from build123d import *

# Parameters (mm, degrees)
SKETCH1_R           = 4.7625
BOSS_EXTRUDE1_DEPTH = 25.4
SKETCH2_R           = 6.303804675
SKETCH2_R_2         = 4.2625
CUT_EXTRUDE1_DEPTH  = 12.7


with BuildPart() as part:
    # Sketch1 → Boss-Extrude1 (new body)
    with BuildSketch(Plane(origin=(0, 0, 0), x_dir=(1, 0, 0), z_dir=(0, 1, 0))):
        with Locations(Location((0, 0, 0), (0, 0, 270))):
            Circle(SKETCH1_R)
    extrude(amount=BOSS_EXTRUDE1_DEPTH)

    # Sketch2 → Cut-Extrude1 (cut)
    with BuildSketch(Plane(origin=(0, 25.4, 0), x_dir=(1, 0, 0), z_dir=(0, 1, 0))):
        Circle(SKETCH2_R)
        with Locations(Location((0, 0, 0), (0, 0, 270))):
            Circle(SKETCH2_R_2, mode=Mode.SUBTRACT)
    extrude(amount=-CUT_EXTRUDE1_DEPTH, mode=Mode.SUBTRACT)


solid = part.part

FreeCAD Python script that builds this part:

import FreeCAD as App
import Part
import Sketcher
Q = App.Units.Quantity

doc = App.newDocument("Part")
body = doc.addObject("PartDesign::Body", "Body")

sketch1 = doc.addObject("Sketcher::SketchObject", "Sketch")
body.addObject(sketch1)
sketch1.AttachmentSupport = (doc.XZ_Plane, [""])
sketch1.MapMode = "FlatFace"
sketch1.addGeometry(Part.Circle(App.Vector(0, 0, 0), App.Vector(0, 0, 1), 4.8), False)
sketch1.addConstraint([
    Sketcher.Constraint("Coincident", 0, 3, -1, 1),
    Sketcher.Constraint("Diameter", 0, Q("0.375 in")),
])
pad1 = doc.addObject("PartDesign::Pad", "Pad")
body.addObject(pad1)
pad1.Profile = sketch1
pad1.Length = Q("1 in")
pad1.Reversed = True

sketch2 = doc.addObject("Sketcher::SketchObject", "Sketch001")
body.addObject(sketch2)
sketch2.AttachmentSupport = (doc.XZ_Plane, [""])
sketch2.MapMode = "FlatFace"
sketch2.AttachmentOffset = App.Placement(App.Vector(0, 0, -1 * 25.4), App.Rotation())
sketch2.addGeometry([
    Part.Circle(App.Vector(0, 0, 0), App.Vector(0, 0, 1), 6.3),
    Part.Circle(App.Vector(0, 0, 0), App.Vector(0, 0, 1), 4.3),
], False)
sketch2.addConstraint([
    Sketcher.Constraint("Coincident", 0, 3, -1, 1),
    Sketcher.Constraint("Coincident", 1, 3, -1, 1),
    Sketcher.Constraint("Diameter", 1, 8.525),
    Sketcher.Constraint("Diameter", 0, 12.607609),
])
pocket1 = doc.addObject("PartDesign::Pocket", "Pocket")
body.addObject(pocket1)
pocket1.Profile = sketch2
pocket1.Length = Q("0.5 in")
pocket1.Reversed = True

doc.recompute()
